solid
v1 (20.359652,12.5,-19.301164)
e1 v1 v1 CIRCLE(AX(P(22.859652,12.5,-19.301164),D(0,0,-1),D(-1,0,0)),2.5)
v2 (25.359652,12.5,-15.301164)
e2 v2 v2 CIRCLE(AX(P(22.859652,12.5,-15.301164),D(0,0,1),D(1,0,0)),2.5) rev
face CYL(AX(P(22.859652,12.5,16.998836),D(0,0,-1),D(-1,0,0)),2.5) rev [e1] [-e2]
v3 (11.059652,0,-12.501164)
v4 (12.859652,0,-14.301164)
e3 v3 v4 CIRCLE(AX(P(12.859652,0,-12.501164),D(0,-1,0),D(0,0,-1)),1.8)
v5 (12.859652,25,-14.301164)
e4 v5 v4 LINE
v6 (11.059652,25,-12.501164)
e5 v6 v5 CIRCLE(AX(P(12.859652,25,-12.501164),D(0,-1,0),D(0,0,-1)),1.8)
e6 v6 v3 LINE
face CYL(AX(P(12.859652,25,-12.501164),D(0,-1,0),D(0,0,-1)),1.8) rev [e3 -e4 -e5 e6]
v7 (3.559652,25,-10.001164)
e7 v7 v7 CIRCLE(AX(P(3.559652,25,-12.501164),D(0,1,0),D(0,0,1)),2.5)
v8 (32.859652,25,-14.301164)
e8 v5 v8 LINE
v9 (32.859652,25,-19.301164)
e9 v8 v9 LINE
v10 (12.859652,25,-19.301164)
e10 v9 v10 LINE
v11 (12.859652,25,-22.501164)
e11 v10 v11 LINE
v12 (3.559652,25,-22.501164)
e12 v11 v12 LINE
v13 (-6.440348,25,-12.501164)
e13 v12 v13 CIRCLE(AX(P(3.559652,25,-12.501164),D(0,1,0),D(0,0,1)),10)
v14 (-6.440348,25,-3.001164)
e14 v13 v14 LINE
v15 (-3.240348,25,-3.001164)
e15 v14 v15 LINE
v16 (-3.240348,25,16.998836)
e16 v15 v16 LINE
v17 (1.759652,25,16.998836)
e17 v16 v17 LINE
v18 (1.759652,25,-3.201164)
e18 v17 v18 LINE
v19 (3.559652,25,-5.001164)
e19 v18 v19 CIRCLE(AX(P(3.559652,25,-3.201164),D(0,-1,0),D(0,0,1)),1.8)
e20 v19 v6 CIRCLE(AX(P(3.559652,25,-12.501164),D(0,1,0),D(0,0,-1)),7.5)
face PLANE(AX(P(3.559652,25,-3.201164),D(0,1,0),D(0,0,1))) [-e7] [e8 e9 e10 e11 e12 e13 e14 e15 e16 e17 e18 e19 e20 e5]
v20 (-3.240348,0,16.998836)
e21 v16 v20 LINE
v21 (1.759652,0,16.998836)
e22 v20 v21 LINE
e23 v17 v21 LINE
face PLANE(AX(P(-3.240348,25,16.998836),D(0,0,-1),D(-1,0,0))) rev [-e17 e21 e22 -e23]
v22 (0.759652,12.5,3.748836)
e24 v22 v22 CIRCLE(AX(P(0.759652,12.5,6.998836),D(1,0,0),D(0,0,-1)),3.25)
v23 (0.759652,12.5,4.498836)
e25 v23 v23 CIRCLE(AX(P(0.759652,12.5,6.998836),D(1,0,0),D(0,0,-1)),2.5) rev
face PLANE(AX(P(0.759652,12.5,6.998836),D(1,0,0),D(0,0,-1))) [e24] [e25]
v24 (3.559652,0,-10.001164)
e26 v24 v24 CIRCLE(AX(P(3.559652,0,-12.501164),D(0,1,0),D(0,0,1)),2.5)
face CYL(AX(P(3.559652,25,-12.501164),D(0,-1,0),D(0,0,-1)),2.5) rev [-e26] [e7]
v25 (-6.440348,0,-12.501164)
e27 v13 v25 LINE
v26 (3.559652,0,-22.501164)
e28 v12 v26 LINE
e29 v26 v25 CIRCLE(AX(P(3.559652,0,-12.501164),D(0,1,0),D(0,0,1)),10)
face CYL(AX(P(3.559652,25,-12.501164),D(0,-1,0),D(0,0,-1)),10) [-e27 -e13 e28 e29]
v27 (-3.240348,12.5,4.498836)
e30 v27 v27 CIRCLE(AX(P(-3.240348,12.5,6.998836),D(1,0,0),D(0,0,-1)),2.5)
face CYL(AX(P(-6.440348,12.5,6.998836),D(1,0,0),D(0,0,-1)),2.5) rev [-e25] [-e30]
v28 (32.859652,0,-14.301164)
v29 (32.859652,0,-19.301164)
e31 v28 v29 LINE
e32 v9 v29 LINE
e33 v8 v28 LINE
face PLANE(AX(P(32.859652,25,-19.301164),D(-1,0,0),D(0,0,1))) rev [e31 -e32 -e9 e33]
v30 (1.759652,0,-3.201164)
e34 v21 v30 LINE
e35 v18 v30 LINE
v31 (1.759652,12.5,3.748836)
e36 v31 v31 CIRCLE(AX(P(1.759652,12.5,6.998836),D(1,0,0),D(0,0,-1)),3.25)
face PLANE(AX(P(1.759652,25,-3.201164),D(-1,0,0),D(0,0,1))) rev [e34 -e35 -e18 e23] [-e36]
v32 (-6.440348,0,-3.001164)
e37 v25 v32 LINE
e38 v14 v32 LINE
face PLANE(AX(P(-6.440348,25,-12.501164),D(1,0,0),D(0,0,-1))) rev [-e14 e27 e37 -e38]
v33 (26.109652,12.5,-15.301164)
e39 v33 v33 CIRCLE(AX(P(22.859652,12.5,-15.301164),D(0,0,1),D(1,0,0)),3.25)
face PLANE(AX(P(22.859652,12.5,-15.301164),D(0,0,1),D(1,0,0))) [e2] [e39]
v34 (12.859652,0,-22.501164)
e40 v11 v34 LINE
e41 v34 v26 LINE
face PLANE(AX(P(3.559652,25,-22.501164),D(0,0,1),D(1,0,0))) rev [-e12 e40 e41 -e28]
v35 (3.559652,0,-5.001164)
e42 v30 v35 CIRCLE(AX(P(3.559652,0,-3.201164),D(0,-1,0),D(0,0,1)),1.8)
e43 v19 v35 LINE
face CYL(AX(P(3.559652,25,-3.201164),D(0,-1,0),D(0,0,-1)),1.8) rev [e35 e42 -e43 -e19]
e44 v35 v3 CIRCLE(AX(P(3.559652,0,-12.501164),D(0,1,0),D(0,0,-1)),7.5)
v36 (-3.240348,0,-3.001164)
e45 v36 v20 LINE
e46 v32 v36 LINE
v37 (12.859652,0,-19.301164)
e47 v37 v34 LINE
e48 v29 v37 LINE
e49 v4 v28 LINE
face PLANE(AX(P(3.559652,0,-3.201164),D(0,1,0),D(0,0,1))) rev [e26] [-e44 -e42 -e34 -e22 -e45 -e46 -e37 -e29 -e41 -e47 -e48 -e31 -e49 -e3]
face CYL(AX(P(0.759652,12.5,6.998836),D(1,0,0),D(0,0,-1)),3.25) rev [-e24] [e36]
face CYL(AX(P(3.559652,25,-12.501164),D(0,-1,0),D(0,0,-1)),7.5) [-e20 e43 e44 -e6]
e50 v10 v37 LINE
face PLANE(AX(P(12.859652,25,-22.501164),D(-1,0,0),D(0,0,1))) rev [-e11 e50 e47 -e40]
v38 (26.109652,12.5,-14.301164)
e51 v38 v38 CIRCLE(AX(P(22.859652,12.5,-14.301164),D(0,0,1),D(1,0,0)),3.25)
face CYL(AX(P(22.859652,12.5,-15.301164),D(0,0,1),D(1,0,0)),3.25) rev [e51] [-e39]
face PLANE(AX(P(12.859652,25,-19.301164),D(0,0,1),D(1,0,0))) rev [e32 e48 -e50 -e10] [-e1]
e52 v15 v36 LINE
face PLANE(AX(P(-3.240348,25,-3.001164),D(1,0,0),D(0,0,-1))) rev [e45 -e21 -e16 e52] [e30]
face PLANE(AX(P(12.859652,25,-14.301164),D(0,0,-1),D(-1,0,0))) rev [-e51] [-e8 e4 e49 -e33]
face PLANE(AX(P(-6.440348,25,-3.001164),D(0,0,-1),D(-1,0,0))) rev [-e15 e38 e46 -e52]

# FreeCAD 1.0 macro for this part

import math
import FreeCAD as App
import Part
import Sketcher
from FreeCAD import Vector
Q = App.Units.Quantity

doc = App.newDocument("Part")
body = doc.addObject("PartDesign::Body", "Body")

sketch1 = body.newObject("Sketcher::SketchObject", "Sketch")
sketch1.AttachmentSupport = (doc.getObject("XZ_Plane"), [""])
sketch1.MapMode = "FlatFace"
sketch1.addGeometry(Part.LineSegment(Vector(12.9, -14.3, 0), Vector(32.9, -14.3, 0)), False)
sketch1.addGeometry(Part.LineSegment(Vector(32.9, -14.3, 0), Vector(32.9, -19.3, 0)), False)
sketch1.addGeometry(Part.LineSegment(Vector(32.9, -19.3, 0), Vector(12.9, -19.3, 0)), False)
sketch1.addGeometry(Part.LineSegment(Vector(12.9, -19.3, 0), Vector(12.9, -22.5, 0)), False)
sketch1.addGeometry(Part.LineSegment(Vector(12.9, -22.5, 0), Vector(3.6, -22.5, 0)), False)
sketch1.addGeometry(Part.ArcOfCircle(Part.Circle(Vector(3.6, -12.5, 0), Vector(0, 0, 1), 10), math.radians(180), math.radians(270)), False)
sketch1.addGeometry(Part.LineSegment(Vector(-6.4, -12.5, 0), Vector(-6.4, -3, 0)), False)
sketch1.addGeometry(Part.LineSegment(Vector(-6.4, -3, 0), Vector(-3.2, -3, 0)), False)
sketch1.addGeometry(Part.LineSegment(Vector(-3.2, -3, 0), Vector(-3.2, 17, 0)), False)
sketch1.addGeometry(Part.LineSegment(Vector(-3.2, 17, 0), Vector(1.8, 17, 0)), False)
sketch1.addGeometry(Part.LineSegment(Vector(1.8, 17, 0), Vector(1.8, -3.2, 0)), False)
sketch1.addGeometry(Part.ArcOfCircle(Part.Circle(Vector(3.6, -3.2, 0), Vector(0, 0, 1), 1.8), math.radians(180), math.radians(270)), False)
sketch1.addGeometry(Part.ArcOfCircle(Part.Circle(Vector(3.6, -12.5, 0), Vector(0, 0, 1), 7.5), math.radians(0), math.radians(90)), False)
sketch1.addGeometry(Part.ArcOfCircle(Part.Circle(Vector(12.9, -12.5, 0), Vector(0, 0, 1), 1.8), math.radians(180), math.radians(270)), False)
sketch1.addGeometry(Part.Circle(Vector(3.6, -12.5, 0), Vector(0, 0, 1), 2.5), False)
sketch1.addConstraint(Sketcher.Constraint("Coincident", 0, 2, 1, 1))
sketch1.addConstraint(Sketcher.Constraint("Coincident", 1, 2, 2, 1))
sketch1.addConstraint(Sketcher.Constraint("Coincident", 2, 2, 3, 1))
sketch1.addConstraint(Sketcher.Constraint("Coincident", 3, 2, 4, 1))
sketch1.addConstraint(Sketcher.Constraint("Tangent", 4, 2, 5, 2))
sketch1.addConstraint(Sketcher.Constraint("Tangent", 5, 1, 6, 1))
sketch1.addConstraint(Sketcher.Constraint("Coincident", 6, 2, 7, 1))
sketch1.addConstraint(Sketcher.Constraint("Coincident", 7, 2, 8, 1))
sketch1.addConstraint(Sketcher.Constraint("Coincident", 8, 2, 9, 1))
sketch1.addConstraint(Sketcher.Constraint("Coincident", 9, 2, 10, 1))
sketch1.addConstraint(Sketcher.Constraint("Tangent", 10, 2, 11, 1))
sketch1.addConstraint(Sketcher.Constraint("Tangent", 11, 2, 12, 2))
sketch1.addConstraint(Sketcher.Constraint("Tangent", 12, 1, 13, 1))
sketch1.addConstraint(Sketcher.Constraint("Tangent", 13, 2, 0, 1))
sketch1.addConstraint(Sketcher.Constraint("Horizontal", 0))
sketch1.addConstraint(Sketcher.Constraint("Vertical", 1))
sketch1.addConstraint(Sketcher.Constraint("Horizontal", 2))
sketch1.addConstraint(Sketcher.Constraint("Vertical", 3))
sketch1.addConstraint(Sketcher.Constraint("Horizontal", 4))
sketch1.addConstraint(Sketcher.Constraint("Vertical", 6))
sketch1.addConstraint(Sketcher.Constraint("Horizontal", 7))
sketch1.addConstraint(Sketcher.Constraint("Vertical", 8))
sketch1.addConstraint(Sketcher.Constraint("Horizontal", 9))
sketch1.addConstraint(Sketcher.Constraint("Vertical", 10))
sketch1.addConstraint(Sketcher.Constraint("Coincident", 12, 3, 5, 3))
sketch1.addConstraint(Sketcher.Constraint("Coincident", 14, 3, 5, 3))
sketch1.addConstraint(Sketcher.Constraint("Equal", 11, 13))
sketch1.addConstraint(Sketcher.Constraint("Horizontal", 12, 3, 13, 3))
sketch1.addConstraint(Sketcher.Constraint("Vertical", 5, 3, 11, 3))
sketch1.addConstraint(Sketcher.Constraint("Vertical", 13, 3, 2, 2))
sketch1.addConstraint(Sketcher.Constraint("Equal", 9, 1))
sketch1.addConstraint(Sketcher.Constraint("Equal", 2, 8))
sketch1.addConstraint(Sketcher.Constraint("Diameter", 14, Q("5 mm")))
sketch1.addConstraint(Sketcher.Constraint("Radius", 5, Q("10 mm")))
sketch1.addConstraint(Sketcher.Constraint("Radius", 11, Q("1.8 mm")))
sketch1.addConstraint(Sketcher.Constraint("Radius", 12, Q("7.5 mm")))
sketch1.addConstraint(Sketcher.Constraint("DistanceX", 0, 1, 0, 2, Q("20 mm")))
sketch1.addConstraint(Sketcher.Constraint("DistanceX", 9, 1, 9, 2, Q("5 mm")))
sketch1.addConstraint(Sketcher.Constraint("DistanceY", 6, 1, 6, 2, Q("9.5 mm")))
sketch1.addConstraint(Sketcher.Constraint("DistanceX", -1, 1, 5, 3, Q("3.559652 mm")))
sketch1.addConstraint(Sketcher.Constraint("DistanceY", 5, 3, -1, 1, Q("12.501164 mm")))
pad1 = body.newObject("PartDesign::Pad", "Pad")
pad1.Profile = sketch1
pad1.Length = 25
pad1.Reversed = True

sketch2 = body.newObject("Sketcher::SketchObject", "Sketch001")
sketch2.AttachmentSupport = (doc.getObject("XY_Plane"), [""])
sketch2.MapMode = "FlatFace"
sketch2.AttachmentOffset = App.Placement(Vector(0, 0, -19.301164), App.Rotation())
sketch2.addGeometry(Part.Circle(Vector(22.9, 12.5, 0), Vector(0, 0, 1), 2.5), False)
sketch2.addConstraint(Sketcher.Constraint("Diameter", 0, Q("5 mm")))
sketch2.addConstraint(Sketcher.Constraint("DistanceY", -1, 1, 0, 3, Q("12.5 mm")))
sketch2.addConstraint(Sketcher.Constraint("DistanceX", -1, 1, 0, 3, Q("22.859652 mm")))
pocket1 = body.newObject("PartDesign::Pocket", "Pocket")
pocket1.Profile = sketch2
pocket1.Type = "ThroughAll"
pocket1.Reversed = True

sketch3 = body.newObject("Sketcher::SketchObject", "Sketch002")
sketch3.AttachmentSupport = (doc.getObject("XY_Plane"), [""])
sketch3.MapMode = "FlatFace"
sketch3.AttachmentOffset = App.Placement(Vector(0, 0, -14.301164), App.Rotation())
sketch3.addGeometry(Part.Circle(Vector(22.9, 12.5, 0), Vector(0, 0, 1), 3.2), False)
sketch3.addConstraint(Sketcher.Constraint("Diameter", 0, Q("6.5 mm")))
sketch3.addConstraint(Sketcher.Constraint("DistanceY", -1, 1, 0, 3, Q("12.5 mm")))
sketch3.addConstraint(Sketcher.Constraint("DistanceX", -1, 1, 0, 3, Q("22.859652 mm")))
pocket2 = body.newObject("PartDesign::Pocket", "Pocket001")
pocket2.Profile = sketch3
pocket2.Length = 1

sketch4 = body.newObject("Sketcher::SketchObject", "Sketch003")
sketch4.AttachmentSupport = (doc.getObject("YZ_Plane"), [""])
sketch4.MapMode = "FlatFace"
sketch4.AttachmentOffset = App.Placement(Vector(0, 0, 1.759652), App.Rotation())
sketch4.addGeometry(Part.Circle(Vector(12.5, 7, 0), Vector(0, 0, 1), 2.5), False)
sketch4.addConstraint(Sketcher.Constraint("Diameter", 0, Q("5 mm")))
sketch4.addConstraint(Sketcher.Constraint("DistanceX", -1, 1, 0, 3, Q("12.5 mm")))
sketch4.addConstraint(Sketcher.Constraint("DistanceY", -1, 1, 0, 3, Q("6.998836 mm")))
pocket3 = body.newObject("PartDesign::Pocket", "Pocket002")
pocket3.Profile = sketch4
pocket3.Type = "ThroughAll"

sketch5 = body.newObject("Sketcher::SketchObject", "Sketch004")
sketch5.AttachmentSupport = (doc.getObject("YZ_Plane"), [""])
sketch5.MapMode = "FlatFace"
sketch5.AttachmentOffset = App.Placement(Vector(0, 0, 1.759652), App.Rotation())
sketch5.addGeometry(Part.Circle(Vector(12.5, 7, 0), Vector(0, 0, 1), 3.2), False)
sketch5.addConstraint(Sketcher.Constraint("Diameter", 0, Q("6.5 mm")))
sketch5.addConstraint(Sketcher.Constraint("DistanceX", -1, 1, 0, 3, Q("12.5 mm")))
sketch5.addConstraint(Sketcher.Constraint("DistanceY", -1, 1, 0, 3, Q("6.998836 mm")))
pocket4 = body.newObject("PartDesign::Pocket", "Pocket003")
pocket4.Profile = sketch5
pocket4.Length = 1

doc.recompute()
